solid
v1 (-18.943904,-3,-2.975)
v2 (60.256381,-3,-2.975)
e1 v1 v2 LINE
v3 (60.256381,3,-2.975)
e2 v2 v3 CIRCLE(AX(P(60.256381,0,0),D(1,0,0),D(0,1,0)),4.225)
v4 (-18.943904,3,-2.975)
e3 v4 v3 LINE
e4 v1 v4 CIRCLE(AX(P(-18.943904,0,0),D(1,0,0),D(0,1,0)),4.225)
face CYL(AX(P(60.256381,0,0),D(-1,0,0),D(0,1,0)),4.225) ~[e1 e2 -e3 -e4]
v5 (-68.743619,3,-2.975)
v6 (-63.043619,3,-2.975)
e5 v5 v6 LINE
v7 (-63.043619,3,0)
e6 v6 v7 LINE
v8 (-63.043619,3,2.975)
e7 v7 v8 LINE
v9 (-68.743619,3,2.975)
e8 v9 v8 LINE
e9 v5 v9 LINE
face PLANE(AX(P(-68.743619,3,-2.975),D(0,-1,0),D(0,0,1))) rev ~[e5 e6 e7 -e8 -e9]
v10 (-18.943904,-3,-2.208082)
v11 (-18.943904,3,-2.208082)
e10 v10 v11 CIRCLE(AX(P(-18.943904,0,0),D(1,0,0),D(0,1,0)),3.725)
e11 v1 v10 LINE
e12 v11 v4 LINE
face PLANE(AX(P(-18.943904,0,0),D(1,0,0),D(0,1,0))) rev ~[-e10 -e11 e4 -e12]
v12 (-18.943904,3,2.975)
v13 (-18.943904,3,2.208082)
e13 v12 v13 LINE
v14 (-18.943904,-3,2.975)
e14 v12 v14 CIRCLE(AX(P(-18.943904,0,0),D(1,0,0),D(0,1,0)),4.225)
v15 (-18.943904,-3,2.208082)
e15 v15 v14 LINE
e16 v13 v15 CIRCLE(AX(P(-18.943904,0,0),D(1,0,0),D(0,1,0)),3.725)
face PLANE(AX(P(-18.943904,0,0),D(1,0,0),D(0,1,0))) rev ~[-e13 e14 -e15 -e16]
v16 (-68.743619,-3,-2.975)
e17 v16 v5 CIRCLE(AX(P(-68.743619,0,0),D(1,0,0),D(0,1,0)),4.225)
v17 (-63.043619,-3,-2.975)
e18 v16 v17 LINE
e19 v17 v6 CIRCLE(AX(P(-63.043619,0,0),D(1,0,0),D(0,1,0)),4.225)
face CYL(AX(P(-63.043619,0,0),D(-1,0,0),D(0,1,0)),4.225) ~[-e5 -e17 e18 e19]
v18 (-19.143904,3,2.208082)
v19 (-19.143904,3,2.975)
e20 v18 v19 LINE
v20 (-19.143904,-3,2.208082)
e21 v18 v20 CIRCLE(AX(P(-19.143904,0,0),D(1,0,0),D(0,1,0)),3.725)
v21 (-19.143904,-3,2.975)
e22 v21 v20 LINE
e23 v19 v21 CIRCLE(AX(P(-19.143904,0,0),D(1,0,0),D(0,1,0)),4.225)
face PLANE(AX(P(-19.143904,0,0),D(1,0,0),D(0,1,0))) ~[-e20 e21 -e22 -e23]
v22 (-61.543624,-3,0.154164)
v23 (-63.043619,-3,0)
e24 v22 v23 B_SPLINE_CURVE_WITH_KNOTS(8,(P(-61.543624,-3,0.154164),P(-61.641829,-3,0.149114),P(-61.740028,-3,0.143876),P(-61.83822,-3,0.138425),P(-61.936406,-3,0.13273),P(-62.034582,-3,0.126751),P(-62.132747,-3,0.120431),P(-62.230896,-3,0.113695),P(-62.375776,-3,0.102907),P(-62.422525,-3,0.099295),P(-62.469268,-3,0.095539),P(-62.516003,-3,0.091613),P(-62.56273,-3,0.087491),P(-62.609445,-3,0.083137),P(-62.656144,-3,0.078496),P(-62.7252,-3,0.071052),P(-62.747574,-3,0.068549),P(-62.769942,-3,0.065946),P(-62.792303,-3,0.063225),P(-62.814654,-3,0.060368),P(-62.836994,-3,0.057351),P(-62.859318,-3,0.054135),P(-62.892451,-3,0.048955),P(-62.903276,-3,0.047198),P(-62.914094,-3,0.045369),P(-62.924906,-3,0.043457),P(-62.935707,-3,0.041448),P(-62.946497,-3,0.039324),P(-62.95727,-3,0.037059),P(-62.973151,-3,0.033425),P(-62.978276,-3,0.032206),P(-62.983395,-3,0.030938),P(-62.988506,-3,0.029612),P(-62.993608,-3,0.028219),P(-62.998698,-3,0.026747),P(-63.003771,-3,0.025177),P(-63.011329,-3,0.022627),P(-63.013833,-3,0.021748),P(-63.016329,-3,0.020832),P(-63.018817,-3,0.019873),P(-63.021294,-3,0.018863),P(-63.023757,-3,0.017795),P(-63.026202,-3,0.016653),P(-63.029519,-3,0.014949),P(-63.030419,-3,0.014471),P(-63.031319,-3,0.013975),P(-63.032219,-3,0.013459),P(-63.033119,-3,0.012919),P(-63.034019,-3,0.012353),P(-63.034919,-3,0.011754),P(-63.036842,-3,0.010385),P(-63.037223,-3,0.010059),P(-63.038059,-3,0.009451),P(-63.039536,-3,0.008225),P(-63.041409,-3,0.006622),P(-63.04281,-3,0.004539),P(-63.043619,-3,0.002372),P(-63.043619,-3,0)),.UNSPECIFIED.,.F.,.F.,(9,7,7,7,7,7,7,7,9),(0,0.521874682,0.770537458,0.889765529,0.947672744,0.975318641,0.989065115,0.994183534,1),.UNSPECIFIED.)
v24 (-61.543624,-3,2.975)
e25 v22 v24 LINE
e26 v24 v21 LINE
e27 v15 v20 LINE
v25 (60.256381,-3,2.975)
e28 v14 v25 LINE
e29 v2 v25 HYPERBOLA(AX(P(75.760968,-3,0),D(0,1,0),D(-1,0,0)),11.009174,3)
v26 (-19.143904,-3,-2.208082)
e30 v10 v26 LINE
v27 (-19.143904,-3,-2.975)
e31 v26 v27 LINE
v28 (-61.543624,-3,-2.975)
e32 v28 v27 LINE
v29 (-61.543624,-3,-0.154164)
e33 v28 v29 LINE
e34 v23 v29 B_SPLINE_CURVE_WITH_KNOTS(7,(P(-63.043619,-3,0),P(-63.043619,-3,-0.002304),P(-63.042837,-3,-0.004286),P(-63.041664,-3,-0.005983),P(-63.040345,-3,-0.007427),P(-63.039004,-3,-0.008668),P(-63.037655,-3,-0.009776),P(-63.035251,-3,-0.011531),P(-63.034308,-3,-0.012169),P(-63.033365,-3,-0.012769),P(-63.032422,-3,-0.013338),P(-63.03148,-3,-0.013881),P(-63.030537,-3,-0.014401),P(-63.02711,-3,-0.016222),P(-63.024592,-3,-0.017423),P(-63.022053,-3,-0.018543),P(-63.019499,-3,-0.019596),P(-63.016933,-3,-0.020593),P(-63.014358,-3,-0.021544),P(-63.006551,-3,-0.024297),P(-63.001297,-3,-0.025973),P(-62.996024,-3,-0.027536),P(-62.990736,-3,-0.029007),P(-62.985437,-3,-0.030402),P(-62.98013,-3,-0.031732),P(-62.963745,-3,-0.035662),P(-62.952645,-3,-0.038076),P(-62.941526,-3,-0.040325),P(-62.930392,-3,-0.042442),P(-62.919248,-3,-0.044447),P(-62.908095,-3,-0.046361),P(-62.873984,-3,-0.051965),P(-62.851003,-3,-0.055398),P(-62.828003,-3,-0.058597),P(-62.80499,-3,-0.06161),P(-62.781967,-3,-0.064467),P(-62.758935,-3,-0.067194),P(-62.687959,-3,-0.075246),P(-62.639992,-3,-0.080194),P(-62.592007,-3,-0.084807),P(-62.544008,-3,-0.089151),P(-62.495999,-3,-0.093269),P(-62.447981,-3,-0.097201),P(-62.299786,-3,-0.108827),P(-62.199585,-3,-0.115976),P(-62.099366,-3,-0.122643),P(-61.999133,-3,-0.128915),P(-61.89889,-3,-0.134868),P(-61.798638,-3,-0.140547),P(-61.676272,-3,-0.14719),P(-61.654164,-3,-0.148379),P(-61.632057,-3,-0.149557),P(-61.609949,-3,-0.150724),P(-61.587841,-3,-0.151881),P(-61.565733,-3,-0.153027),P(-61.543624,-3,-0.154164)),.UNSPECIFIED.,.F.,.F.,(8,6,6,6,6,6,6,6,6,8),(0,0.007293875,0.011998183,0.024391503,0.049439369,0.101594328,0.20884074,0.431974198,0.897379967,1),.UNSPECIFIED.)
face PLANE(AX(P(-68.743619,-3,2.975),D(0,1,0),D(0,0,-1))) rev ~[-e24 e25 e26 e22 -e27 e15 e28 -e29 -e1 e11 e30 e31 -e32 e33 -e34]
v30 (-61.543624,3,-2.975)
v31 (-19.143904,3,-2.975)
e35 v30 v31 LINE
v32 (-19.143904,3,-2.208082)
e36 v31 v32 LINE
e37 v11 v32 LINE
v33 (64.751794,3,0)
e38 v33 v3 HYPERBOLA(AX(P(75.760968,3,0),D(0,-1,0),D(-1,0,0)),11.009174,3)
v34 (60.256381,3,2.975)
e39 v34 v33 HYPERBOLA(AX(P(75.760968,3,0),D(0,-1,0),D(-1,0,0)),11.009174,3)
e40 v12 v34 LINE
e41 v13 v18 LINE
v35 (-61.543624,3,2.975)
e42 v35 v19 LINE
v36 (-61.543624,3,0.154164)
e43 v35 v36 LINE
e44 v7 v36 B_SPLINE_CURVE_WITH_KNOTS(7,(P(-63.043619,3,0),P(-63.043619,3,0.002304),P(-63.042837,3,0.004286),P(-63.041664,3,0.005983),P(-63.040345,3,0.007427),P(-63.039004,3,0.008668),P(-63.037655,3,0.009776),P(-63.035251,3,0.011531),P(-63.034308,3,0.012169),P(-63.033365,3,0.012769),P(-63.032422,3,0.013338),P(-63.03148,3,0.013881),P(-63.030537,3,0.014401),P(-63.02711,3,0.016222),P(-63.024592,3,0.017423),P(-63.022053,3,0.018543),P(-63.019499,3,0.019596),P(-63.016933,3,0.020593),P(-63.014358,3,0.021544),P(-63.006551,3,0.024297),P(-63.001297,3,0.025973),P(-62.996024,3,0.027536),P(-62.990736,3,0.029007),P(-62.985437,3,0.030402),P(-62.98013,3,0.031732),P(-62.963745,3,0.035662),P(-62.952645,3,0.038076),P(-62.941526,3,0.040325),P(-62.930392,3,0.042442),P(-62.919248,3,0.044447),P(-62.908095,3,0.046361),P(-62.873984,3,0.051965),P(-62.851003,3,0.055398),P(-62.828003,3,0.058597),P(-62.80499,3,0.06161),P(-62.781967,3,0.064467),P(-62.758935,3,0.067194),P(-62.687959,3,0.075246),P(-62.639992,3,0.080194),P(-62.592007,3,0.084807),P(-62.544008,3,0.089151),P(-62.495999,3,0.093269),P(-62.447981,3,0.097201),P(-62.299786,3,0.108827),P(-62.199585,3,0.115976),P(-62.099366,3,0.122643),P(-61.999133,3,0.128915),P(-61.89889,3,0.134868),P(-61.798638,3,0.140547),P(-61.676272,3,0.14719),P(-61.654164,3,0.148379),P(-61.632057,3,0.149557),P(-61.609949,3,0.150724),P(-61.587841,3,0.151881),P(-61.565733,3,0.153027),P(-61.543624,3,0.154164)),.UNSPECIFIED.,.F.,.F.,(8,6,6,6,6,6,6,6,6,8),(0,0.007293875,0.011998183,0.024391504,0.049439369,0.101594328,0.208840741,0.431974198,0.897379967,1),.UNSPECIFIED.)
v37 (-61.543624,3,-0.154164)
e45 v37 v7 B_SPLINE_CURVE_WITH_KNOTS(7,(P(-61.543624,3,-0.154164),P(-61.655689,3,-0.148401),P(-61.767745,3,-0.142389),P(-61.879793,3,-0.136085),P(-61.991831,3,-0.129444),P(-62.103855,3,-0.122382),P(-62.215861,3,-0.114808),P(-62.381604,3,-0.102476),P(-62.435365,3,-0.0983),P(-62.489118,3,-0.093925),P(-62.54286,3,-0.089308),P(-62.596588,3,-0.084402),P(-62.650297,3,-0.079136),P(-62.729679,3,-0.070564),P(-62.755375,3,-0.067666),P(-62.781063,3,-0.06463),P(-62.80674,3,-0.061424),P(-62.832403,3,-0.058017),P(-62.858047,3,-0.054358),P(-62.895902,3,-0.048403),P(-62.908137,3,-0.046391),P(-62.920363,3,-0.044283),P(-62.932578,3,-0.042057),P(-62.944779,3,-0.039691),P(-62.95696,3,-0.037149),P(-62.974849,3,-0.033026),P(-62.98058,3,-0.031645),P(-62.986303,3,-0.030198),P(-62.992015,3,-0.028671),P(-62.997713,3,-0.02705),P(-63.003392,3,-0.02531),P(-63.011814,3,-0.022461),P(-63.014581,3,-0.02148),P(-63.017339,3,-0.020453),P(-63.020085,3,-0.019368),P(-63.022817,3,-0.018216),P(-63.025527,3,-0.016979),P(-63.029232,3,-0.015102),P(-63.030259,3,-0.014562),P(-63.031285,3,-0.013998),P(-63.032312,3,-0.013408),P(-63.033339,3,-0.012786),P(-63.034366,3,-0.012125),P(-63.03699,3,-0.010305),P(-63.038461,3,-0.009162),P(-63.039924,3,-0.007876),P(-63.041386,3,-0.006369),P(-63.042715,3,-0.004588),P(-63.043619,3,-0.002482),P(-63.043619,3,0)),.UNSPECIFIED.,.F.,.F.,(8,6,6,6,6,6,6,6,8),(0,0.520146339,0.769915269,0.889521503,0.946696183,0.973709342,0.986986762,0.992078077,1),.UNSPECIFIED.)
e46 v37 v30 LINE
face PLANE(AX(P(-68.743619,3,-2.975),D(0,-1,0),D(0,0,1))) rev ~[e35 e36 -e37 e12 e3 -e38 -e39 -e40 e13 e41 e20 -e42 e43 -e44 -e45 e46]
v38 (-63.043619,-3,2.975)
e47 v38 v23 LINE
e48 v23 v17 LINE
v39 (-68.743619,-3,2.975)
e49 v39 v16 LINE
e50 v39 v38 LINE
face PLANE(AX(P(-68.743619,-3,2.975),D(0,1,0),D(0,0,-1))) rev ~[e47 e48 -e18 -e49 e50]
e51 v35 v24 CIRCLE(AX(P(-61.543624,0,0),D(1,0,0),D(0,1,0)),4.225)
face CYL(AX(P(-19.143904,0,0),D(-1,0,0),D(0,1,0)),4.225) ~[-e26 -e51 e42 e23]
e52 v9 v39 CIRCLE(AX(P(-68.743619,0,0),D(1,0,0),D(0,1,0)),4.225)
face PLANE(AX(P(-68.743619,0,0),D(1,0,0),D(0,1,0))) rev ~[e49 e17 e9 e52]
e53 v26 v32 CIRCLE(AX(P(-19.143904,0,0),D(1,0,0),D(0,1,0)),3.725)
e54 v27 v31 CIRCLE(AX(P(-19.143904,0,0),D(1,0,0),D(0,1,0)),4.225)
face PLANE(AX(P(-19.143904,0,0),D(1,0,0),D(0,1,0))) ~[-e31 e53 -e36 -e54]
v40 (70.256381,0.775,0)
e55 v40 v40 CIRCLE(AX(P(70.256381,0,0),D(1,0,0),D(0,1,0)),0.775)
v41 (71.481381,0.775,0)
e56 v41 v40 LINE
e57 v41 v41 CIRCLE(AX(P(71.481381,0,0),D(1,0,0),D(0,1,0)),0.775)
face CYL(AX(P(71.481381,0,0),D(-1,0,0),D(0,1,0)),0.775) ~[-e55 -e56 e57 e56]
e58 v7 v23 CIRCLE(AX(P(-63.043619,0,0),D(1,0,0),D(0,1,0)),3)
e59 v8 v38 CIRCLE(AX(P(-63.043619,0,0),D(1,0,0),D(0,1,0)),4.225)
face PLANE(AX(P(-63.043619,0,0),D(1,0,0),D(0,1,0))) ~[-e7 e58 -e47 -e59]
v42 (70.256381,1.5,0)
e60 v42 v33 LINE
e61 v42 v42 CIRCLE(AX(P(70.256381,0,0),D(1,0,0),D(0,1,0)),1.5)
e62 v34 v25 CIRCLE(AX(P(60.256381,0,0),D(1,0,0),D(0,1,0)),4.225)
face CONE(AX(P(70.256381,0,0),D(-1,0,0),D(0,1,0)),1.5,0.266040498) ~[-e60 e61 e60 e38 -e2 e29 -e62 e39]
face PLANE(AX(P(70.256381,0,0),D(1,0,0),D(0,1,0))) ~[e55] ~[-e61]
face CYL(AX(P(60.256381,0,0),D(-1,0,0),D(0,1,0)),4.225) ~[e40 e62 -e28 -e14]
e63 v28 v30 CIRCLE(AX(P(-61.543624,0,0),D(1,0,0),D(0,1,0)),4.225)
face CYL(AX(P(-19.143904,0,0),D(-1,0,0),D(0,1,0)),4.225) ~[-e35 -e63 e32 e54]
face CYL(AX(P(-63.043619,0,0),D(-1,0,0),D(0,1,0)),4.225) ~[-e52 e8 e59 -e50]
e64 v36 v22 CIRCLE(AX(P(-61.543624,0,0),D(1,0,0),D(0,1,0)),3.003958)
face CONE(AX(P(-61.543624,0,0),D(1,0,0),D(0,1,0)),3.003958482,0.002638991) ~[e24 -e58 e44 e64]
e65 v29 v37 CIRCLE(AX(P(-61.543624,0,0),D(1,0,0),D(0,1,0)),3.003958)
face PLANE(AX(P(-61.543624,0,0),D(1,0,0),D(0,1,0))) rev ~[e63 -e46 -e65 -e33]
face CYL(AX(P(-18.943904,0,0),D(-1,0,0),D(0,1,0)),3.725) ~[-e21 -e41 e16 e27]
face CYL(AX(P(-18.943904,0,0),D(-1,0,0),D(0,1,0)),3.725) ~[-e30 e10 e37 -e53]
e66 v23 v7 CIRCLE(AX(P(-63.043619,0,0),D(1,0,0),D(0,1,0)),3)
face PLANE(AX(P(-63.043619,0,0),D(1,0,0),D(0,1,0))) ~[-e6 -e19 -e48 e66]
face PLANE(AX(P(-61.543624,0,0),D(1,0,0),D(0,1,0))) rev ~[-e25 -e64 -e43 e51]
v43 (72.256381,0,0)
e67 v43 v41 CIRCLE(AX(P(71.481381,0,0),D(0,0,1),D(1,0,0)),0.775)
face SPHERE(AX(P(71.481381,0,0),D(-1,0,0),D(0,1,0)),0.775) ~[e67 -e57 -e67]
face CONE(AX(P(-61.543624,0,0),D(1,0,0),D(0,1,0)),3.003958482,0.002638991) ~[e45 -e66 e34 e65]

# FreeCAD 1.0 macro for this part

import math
import FreeCAD as App
import Part
import Sketcher

V = App.Vector
Q = App.Units.Quantity

doc = App.newDocument("Part")
body = doc.addObject("PartDesign::Body", "Body")

# Sketch on XY plane
sketch1 = doc.addObject("Sketcher::SketchObject", "Sketch")
body.addObject(sketch1)
sketch1.AttachmentSupport = (doc.XY_Plane, [""])
sketch1.MapMode = "FlatFace"
sketch1.addGeometry(Part.LineSegment(V(-68.743619, 4.225, 0), V(-68.743619, 0, 0)), False)
sketch1.addGeometry(Part.LineSegment(V(-68.743619, 0, 0), V(72.256381, 0, 0)), False)
sketch1.addGeometry(Part.ArcOfCircle(Part.Circle(V(71.481381, 0, 0), V(0, 0, 1), 0.775), math.radians(0), math.radians(90)), False)
sketch1.addGeometry(Part.LineSegment(V(71.481381, 0.775, 0), V(70.256381, 0.775, 0)), False)
sketch1.addGeometry(Part.LineSegment(V(70.256381, 0.775, 0), V(70.256381, 1.5, 0)), False)
sketch1.addGeometry(Part.LineSegment(V(70.256381, 1.5, 0), V(60.256381, 4.225, 0)), False)
sketch1.addGeometry(Part.LineSegment(V(60.256381, 4.225, 0), V(-18.943904, 4.225, 0)), False)
sketch1.addGeometry(Part.LineSegment(V(-18.943904, 4.225, 0), V(-18.943904, 3.725, 0)), False)
sketch1.addGeometry(Part.LineSegment(V(-18.943904, 3.725, 0), V(-19.143904, 3.725, 0)), False)
sketch1.addGeometry(Part.LineSegment(V(-19.143904, 3.725, 0), V(-19.143904, 4.225, 0)), False)
sketch1.addGeometry(Part.LineSegment(V(-19.143904, 4.225, 0), V(-61.543624, 4.225, 0)), False)
sketch1.addGeometry(Part.LineSegment(V(-61.543624, 4.225, 0), V(-61.543624, 3.003958, 0)), False)
sketch1.addGeometry(Part.LineSegment(V(-61.543624, 3.003958, 0), V(-63.043619, 3, 0)), False)
sketch1.addGeometry(Part.LineSegment(V(-63.043619, 3, 0), V(-63.043619, 4.225, 0)), False)
sketch1.addGeometry(Part.LineSegment(V(-63.043619, 4.225, 0), V(-68.743619, 4.225, 0)), False)
sketch1.addConstraint(Sketcher.Constraint("Coincident", 0, 2, 1, 1))
sketch1.addConstraint(Sketcher.Constraint("Coincident", 1, 2, 2, 1))
sketch1.addConstraint(Sketcher.Constraint("Tangent", 2, 2, 3, 1))
sketch1.addConstraint(Sketcher.Constraint("Coincident", 3, 2, 4, 1))
sketch1.addConstraint(Sketcher.Constraint("Coincident", 4, 2, 5, 1))
sketch1.addConstraint(Sketcher.Constraint("Coincident", 5, 2, 6, 1))
sketch1.addConstraint(Sketcher.Constraint("Coincident", 6, 2, 7, 1))
sketch1.addConstraint(Sketcher.Constraint("Coincident", 7, 2, 8, 1))
sketch1.addConstraint(Sketcher.Constraint("Coincident", 8, 2, 9, 1))
sketch1.addConstraint(Sketcher.Constraint("Coincident", 9, 2, 10, 1))
sketch1.addConstraint(Sketcher.Constraint("Coincident", 10, 2, 11, 1))
sketch1.addConstraint(Sketcher.Constraint("Coincident", 11, 2, 12, 1))
sketch1.addConstraint(Sketcher.Constraint("Coincident", 12, 2, 13, 1))
sketch1.addConstraint(Sketcher.Constraint("Coincident", 13, 2, 14, 1))
sketch1.addConstraint(Sketcher.Constraint("Coincident", 14, 2, 0, 1))
sketch1.addConstraint(Sketcher.Constraint("Vertical", 0))
sketch1.addConstraint(Sketcher.Constraint("Horizontal", 1))
sketch1.addConstraint(Sketcher.Constraint("Horizontal", 3))
sketch1.addConstraint(Sketcher.Constraint("Vertical", 4))
sketch1.addConstraint(Sketcher.Constraint("Horizontal", 6))
sketch1.addConstraint(Sketcher.Constraint("Vertical", 7))
sketch1.addConstraint(Sketcher.Constraint("Horizontal", 8))
sketch1.addConstraint(Sketcher.Constraint("Vertical", 9))
sketch1.addConstraint(Sketcher.Constraint("Horizontal", 10))
sketch1.addConstraint(Sketcher.Constraint("Vertical", 11))
sketch1.addConstraint(Sketcher.Constraint("Vertical", 13))
sketch1.addConstraint(Sketcher.Constraint("Horizontal", 14))
sketch1.addConstraint(Sketcher.Constraint("PointOnObject", 2, 3, -1))
sketch1.addConstraint(Sketcher.Constraint("PointOnObject", 0, 2, -1))
sketch1.addConstraint(Sketcher.Constraint("Horizontal", 6, 2, 9, 2))
sketch1.addConstraint(Sketcher.Constraint("Horizontal", 10, 2, 13, 2))
sketch1.addConstraint(Sketcher.Constraint("Equal", 3, 13))
sketch1.addConstraint(Sketcher.Constraint("DistanceX", 1, 1, 1, 2, Q("141 mm")))
sketch1.addConstraint(Sketcher.Constraint("DistanceX", 8, 2, 8, 1, Q("0.2 mm")))
sketch1.addConstraint(Sketcher.Constraint("DistanceX", 14, 2, 14, 1, Q("5.7 mm")))
sketch1.addConstraint(Sketcher.Constraint("DistanceY", 7, 2, 7, 1, Q("0.5 mm")))
sketch1.addConstraint(Sketcher.Constraint("DistanceY", -1, 1, 12, 2, Q("3 mm")))
sketch1.addConstraint(Sketcher.Constraint("Radius", 2, Q("0.775 mm")))
sketch1.addConstraint(Sketcher.Constraint("DistanceX", 3, 2, 1, 2, Q("2 mm")))
sketch1.addConstraint(Sketcher.Constraint("DistanceX", 5, 2, 4, 2, Q("10 mm")))
sketch1.addConstraint(Sketcher.Constraint("Distance", 12, Q("1.5 mm")))
sketch1.addConstraint(Sketcher.Constraint("DistanceY", -1, 1, 4, 2, Q("1.5 mm")))
sketch1.addConstraint(Sketcher.Constraint("DistanceX", 10, 2, 10, 1, Q("42.39972 mm")))
sketch1.addConstraint(Sketcher.Constraint("DistanceY", 11, 2, 11, 1, Q("1.221042 mm")))
sketch1.addConstraint(Sketcher.Constraint("DistanceX", -1, 1, 2, 3, Q("71.481381 mm")))
revolution = doc.addObject("PartDesign::Revolution", "Revolution")
body.addObject(revolution)
revolution.Profile = sketch1
revolution.ReferenceAxis = (sketch1, ["H_Axis"])
revolution.Angle = 360

# Sketch on YZ plane
sketch2 = doc.addObject("Sketcher::SketchObject", "Sketch001")
body.addObject(sketch2)
sketch2.AttachmentSupport = (doc.YZ_Plane, [""])
sketch2.MapMode = "FlatFace"
sketch2.AttachmentOffset = App.Placement(V(0, 0, -68.743619), App.Rotation())
sketch2.addGeometry(Part.LineSegment(V(3, -2.975, 0), V(3, 2.975, 0)), False)
sketch2.addGeometry(Part.ArcOfCircle(Part.Circle(V(0, 0, 0), V(0, 0, 1), 4.225), math.radians(-44.76027), math.radians(44.76027)), False)
sketch2.addGeometry(Part.ArcOfCircle(Part.Circle(V(0, 0, 0), V(0, 0, 1), 4.225), math.radians(135.23973), math.radians(180)), False)
sketch2.addGeometry(Part.LineSegment(V(-3, 2.975, 0), V(-3, -2.975, 0)), False)
sketch2.addGeometry(Part.ArcOfCircle(Part.Circle(V(0, 0, 0), V(0, 0, 1), 4.225), math.radians(180), math.radians(224.76027)), False)
sketch2.addConstraint(Sketcher.Constraint("Coincident", 0, 1, 1, 1))
sketch2.addConstraint(Sketcher.Constraint("Coincident", 1, 2, 0, 2))
sketch2.addConstraint(Sketcher.Constraint("Coincident", 2, 1, 3, 1))
sketch2.addConstraint(Sketcher.Constraint("Coincident", 3, 2, 4, 2))
sketch2.addConstraint(Sketcher.Constraint("Tangent", 4, 1, 2, 2))
sketch2.addConstraint(Sketcher.Constraint("Vertical", 0))
sketch2.addConstraint(Sketcher.Constraint("Vertical", 3))
sketch2.addConstraint(Sketcher.Constraint("Coincident", 1, 3, -1, 1))
sketch2.addConstraint(Sketcher.Constraint("Coincident", 2, 3, -1, 1))
sketch2.addConstraint(Sketcher.Constraint("Equal", 1, 2))
sketch2.addConstraint(Sketcher.Constraint("Equal", 2, 4))
sketch2.addConstraint(Sketcher.Constraint("PointOnObject", 4, 1, -1))
sketch2.addConstraint(Sketcher.Constraint("Horizontal", 1, 2, 2, 1))
sketch2.addConstraint(Sketcher.Constraint("DistanceX", -1, 1, 0, 1, Q("3 mm")))
sketch2.addConstraint(Sketcher.Constraint("Radius", 1, Q("4.225 mm")))
pocket1 = doc.addObject("PartDesign::Pocket", "Pocket")
body.addObject(pocket1)
pocket1.Profile = sketch2
pocket1.Type = "ThroughAll"
pocket1.Reversed = True

doc.recompute()
